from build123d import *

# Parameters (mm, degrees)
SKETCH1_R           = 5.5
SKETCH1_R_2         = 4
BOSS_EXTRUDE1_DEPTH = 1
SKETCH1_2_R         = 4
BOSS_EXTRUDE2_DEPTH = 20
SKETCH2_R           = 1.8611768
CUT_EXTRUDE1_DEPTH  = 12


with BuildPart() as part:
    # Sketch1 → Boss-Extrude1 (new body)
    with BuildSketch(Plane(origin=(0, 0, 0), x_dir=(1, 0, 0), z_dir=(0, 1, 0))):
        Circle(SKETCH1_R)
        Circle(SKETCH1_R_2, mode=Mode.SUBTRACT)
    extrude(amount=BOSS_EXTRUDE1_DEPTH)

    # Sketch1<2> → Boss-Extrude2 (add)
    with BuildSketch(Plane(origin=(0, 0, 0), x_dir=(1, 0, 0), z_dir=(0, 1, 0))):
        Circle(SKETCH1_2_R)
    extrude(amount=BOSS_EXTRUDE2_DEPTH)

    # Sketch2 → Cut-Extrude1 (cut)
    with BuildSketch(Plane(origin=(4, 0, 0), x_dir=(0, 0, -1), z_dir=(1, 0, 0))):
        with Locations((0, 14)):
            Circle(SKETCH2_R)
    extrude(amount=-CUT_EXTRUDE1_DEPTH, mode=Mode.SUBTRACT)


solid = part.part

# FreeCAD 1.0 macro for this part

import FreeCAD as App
import Part
import Sketcher

V = App.Vector

doc = App.newDocument("Part")
params = doc.addObject("Spreadsheet::Sheet", "Params")
for row, (alias, value) in enumerate([
    ("sketch1_diameter", "11 mm"),
    ("sketch1_diameter2", "8 mm"),
    ("pad1_length", "1 mm"),
    ("sketch2_diameter", "8 mm"),
    ("pad2_length", "20 mm"),
    ("pocket1_length", "12 mm"),
], start=1):
    params.set(f"A{row}", alias)
    params.set(f"B{row}", "=" + value)
    params.setAlias(f"B{row}", alias)

body = doc.addObject("PartDesign::Body", "Body")

sketch1 = body.newObject("Sketcher::SketchObject", "Sketch")
sketch1.AttachmentSupport = (doc.getObject("XZ_Plane"), [""])
sketch1.MapMode = "FlatFace"
sketch1.addGeometry([
    Part.Circle(V(0, 0, 0), V(0, 0, 1), 5.5),
    Part.Circle(V(0, 0, 0), V(0, 0, 1), 4),
], False)
sketch1.addConstraint([
    Sketcher.Constraint("Coincident", 0, 3, -1, 1),
    Sketcher.Constraint("Coincident", 1, 3, -1, 1),
    Sketcher.Constraint("Diameter", 0, 11.0),
    Sketcher.Constraint("Diameter", 1, 8.0),
])
sketch1.setExpression("Constraints[2]", "Params.sketch1_diameter")
sketch1.setExpression("Constraints[3]", "Params.sketch1_diameter2")
pad1 = body.newObject("PartDesign::Pad", "Pad")
pad1.Profile = sketch1
pad1.setExpression("Length", "Params.pad1_length")
pad1.Reversed = True

sketch2 = body.newObject("Sketcher::SketchObject", "Sketch001")
sketch2.AttachmentSupport = (doc.getObject("XZ_Plane"), [""])
sketch2.MapMode = "FlatFace"
sketch2.addGeometry(Part.Circle(V(0, 0, 0), V(0, 0, 1), 4), False)
sketch2.addConstraint([
    Sketcher.Constraint("Coincident", 0, 3, -1, 1),
    Sketcher.Constraint("Diameter", 0, 8.0),
])
sketch2.setExpression("Constraints[1]", "Params.sketch2_diameter")
pad2 = body.newObject("PartDesign::Pad", "Pad001")
pad2.Profile = sketch2
pad2.setExpression("Length", "Params.pad2_length")
pad2.Reversed = True

sketch3 = body.newObject("Sketcher::SketchObject", "Sketch002")
sketch3.AttachmentSupport = (doc.getObject("YZ_Plane"), [""])
sketch3.MapMode = "FlatFace"
sketch3.AttachmentOffset = App.Placement(V(0, 0, 4), App.Rotation())
sketch3.addGeometry(Part.Circle(V(14, 0, 0), V(0, 0, 1), 1.861177), False)
sketch3.addConstraint([
    Sketcher.Constraint("PointOnObject", 0, 3, -1),
    Sketcher.Constraint("DistanceX", -1, 1, 0, 3, 14.0),
    Sketcher.Constraint("Diameter", 0, 3.722354),
])
pocket1 = body.newObject("PartDesign::Pocket", "Pocket")
pocket1.Profile = sketch3
pocket1.setExpression("Length", "Params.pocket1_length")

doc.recompute()
